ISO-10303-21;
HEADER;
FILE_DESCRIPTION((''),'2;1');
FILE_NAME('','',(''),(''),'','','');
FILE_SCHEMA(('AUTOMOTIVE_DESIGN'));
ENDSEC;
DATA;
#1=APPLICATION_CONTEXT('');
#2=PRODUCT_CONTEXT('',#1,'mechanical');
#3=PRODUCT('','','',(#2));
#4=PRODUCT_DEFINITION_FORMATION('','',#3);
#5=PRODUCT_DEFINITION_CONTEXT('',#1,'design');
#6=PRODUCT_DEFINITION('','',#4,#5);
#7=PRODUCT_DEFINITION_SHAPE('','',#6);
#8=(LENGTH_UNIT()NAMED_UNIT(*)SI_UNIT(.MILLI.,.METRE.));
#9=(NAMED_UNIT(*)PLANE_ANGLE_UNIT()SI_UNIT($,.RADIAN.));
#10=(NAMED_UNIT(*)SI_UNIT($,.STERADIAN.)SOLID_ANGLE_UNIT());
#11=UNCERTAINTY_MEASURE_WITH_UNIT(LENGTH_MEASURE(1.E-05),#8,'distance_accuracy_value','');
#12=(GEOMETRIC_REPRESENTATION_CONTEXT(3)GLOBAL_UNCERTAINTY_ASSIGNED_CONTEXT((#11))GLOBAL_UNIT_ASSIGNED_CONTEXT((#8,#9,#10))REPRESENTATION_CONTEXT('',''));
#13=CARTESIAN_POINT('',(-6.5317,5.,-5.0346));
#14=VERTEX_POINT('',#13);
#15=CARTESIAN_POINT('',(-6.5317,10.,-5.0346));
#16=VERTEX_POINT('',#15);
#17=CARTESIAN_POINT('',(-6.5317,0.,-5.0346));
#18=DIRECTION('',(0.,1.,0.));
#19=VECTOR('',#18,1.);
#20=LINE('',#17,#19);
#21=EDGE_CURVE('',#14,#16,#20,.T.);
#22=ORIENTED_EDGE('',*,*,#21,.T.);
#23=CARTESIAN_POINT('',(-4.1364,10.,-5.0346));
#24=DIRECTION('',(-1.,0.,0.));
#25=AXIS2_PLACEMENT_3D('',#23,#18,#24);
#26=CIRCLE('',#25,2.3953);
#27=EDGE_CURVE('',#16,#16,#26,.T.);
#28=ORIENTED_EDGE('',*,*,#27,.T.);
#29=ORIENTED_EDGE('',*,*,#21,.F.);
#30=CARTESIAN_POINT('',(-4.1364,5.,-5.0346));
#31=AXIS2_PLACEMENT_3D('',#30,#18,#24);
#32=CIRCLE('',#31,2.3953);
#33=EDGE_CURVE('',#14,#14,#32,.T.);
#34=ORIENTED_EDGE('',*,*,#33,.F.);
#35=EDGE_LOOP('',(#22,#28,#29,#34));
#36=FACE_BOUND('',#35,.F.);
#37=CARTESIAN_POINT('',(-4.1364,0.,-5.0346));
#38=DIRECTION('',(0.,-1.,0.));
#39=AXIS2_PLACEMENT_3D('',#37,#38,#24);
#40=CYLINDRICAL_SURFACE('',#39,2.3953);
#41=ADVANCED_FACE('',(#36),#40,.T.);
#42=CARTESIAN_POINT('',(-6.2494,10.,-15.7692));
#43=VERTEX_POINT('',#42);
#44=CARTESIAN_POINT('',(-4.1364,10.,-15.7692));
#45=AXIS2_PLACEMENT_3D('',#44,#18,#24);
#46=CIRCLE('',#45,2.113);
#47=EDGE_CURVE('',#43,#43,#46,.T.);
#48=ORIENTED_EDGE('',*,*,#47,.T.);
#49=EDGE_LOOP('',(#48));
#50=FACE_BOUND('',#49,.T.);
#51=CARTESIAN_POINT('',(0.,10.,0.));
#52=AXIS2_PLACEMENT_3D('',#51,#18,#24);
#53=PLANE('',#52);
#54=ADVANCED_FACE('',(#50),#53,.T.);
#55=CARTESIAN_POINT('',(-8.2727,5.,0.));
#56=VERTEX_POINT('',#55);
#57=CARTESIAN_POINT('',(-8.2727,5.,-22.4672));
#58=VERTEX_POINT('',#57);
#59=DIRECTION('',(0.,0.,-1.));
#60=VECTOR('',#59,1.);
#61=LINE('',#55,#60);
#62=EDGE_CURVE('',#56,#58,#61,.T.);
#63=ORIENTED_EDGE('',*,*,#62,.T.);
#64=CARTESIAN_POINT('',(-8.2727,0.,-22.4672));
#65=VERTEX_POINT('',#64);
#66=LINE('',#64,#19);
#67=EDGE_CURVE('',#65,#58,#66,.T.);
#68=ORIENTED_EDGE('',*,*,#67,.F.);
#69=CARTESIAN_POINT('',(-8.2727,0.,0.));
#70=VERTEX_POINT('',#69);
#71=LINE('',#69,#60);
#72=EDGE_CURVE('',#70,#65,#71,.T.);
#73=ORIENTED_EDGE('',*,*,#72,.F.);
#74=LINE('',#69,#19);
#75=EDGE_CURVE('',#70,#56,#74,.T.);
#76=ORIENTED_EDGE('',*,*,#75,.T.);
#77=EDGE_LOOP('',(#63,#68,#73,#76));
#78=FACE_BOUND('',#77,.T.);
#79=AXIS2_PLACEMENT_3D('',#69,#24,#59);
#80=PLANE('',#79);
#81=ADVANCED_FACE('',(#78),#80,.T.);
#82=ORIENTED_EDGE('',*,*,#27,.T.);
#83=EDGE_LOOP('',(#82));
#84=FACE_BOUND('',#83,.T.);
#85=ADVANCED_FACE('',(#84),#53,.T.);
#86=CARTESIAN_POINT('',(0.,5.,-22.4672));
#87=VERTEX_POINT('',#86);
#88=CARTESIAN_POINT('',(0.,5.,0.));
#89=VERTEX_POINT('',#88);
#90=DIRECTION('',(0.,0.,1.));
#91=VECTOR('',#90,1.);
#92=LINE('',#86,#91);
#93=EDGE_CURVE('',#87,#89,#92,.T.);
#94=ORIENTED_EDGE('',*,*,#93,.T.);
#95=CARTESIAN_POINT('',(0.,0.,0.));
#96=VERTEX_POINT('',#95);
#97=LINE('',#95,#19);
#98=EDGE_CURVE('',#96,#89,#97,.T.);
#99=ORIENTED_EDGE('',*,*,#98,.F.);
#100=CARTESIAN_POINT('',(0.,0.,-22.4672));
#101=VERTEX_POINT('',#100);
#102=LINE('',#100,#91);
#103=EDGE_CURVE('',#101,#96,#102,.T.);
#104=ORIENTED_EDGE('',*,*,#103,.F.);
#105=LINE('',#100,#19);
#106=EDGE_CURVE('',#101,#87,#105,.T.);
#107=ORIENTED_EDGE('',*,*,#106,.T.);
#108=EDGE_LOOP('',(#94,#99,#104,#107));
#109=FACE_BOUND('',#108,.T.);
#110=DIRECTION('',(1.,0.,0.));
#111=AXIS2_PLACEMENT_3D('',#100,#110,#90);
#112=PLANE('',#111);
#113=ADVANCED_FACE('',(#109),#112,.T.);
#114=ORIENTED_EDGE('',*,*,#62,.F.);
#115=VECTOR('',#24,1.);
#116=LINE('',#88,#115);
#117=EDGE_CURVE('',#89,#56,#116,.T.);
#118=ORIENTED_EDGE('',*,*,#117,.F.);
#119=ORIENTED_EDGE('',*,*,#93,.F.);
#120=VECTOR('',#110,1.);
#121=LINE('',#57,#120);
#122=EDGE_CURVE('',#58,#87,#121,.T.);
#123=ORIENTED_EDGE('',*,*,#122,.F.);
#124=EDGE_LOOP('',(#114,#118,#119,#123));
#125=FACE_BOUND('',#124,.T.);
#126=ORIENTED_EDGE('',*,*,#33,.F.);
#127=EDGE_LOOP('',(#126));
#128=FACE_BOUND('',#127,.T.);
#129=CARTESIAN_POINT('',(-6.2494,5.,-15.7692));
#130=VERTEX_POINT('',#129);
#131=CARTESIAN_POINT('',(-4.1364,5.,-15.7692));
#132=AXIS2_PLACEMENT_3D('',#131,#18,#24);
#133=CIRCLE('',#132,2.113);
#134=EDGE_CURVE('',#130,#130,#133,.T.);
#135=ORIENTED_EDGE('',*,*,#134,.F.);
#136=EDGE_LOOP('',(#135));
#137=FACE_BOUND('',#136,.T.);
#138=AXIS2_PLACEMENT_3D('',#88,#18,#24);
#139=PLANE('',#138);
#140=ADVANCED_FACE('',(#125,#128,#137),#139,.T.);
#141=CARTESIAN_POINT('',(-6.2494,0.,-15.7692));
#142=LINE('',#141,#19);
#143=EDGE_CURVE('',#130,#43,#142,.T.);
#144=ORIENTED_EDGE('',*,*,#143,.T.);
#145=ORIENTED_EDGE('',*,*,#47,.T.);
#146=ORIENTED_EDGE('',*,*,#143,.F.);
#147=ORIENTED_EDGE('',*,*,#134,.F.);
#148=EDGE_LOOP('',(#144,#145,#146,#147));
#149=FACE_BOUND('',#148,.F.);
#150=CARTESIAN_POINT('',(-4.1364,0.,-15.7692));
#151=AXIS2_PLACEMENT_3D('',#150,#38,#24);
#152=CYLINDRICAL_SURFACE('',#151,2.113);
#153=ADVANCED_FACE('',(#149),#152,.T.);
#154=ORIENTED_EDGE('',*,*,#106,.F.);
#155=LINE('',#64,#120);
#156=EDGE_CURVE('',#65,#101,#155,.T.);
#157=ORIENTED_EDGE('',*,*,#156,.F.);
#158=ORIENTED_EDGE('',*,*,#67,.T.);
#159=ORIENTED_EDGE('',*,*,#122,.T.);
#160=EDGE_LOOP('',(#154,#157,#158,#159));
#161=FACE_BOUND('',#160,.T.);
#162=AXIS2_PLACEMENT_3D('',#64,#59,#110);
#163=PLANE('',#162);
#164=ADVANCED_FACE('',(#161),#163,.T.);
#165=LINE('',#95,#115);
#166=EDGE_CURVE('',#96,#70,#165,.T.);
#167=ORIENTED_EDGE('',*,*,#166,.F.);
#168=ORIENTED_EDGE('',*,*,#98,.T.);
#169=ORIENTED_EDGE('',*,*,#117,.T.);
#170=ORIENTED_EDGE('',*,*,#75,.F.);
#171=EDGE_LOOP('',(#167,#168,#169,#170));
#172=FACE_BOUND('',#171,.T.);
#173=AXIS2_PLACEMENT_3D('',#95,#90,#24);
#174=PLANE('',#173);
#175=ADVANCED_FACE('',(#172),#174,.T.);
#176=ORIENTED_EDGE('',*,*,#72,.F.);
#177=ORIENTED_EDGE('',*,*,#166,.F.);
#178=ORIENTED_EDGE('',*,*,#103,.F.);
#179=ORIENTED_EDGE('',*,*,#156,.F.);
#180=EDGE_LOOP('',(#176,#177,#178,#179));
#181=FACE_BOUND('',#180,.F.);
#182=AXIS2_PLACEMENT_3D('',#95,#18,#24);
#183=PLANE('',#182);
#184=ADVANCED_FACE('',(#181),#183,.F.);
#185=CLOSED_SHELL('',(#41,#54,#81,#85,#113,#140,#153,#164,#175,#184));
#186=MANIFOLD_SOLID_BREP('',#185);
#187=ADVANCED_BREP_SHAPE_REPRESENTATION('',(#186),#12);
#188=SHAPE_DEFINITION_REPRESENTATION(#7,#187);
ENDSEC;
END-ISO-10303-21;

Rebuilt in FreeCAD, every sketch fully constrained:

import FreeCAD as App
import Part
import Sketcher
from FreeCAD import Vector

doc = App.newDocument("Part")
body = doc.addObject("PartDesign::Body", "Body")

sketch1 = doc.addObject("Sketcher::SketchObject", "Sketch")
body.addObject(sketch1)
sketch1.AttachmentSupport = (doc.XZ_Plane, [""])
sketch1.MapMode = "FlatFace"
sketch1.addGeometry([
    Part.LineSegment(Vector(-8.2727, 0, 0), Vector(0, 0, 0)),
    Part.LineSegment(Vector(0, 0, 0), Vector(0, -22.4672, 0)),
    Part.LineSegment(Vector(0, -22.4672, 0), Vector(-8.2727, -22.4672, 0)),
    Part.LineSegment(Vector(-8.2727, -22.4672, 0), Vector(-8.2727, 0, 0)),
    Part.Circle(Vector(-4.1364, -15.7692, 0), Vector(0, 0, 1), 2.113),
    Part.Circle(Vector(-4.1364, -5.0346, 0), Vector(0, 0, 1), 2.3953),
], False)
sketch1.addConstraint([
    Sketcher.Constraint("Coincident", 0, 2, 1, 1),
    Sketcher.Constraint("Coincident", 1, 2, 2, 1),
    Sketcher.Constraint("Coincident", 2, 2, 3, 1),
    Sketcher.Constraint("Coincident", 3, 2, 0, 1),
    Sketcher.Constraint("Horizontal", 0),
    Sketcher.Constraint("Vertical", 1),
    Sketcher.Constraint("Horizontal", 2),
    Sketcher.Constraint("Vertical", 3),
    Sketcher.Constraint("Coincident", 0, 2, -1, 1),
    Sketcher.Constraint("Vertical", 4, 3, 5, 3),
    Sketcher.Constraint("Diameter", 4, 4.226),
    Sketcher.Constraint("Diameter", 5, 4.7906),
    Sketcher.Constraint("DistanceX", 0, 1, 0, 2, 8.2727),
    Sketcher.Constraint("DistanceY", 1, 2, 1, 1, 22.4672),
    Sketcher.Constraint("DistanceY", 1, 2, 4, 3, 6.698),
    Sketcher.Constraint("DistanceX", 4, 3, -1, 1, 4.1364),
    Sketcher.Constraint("DistanceY", 5, 3, -1, 1, 5.0346),
])
pad1 = doc.addObject("PartDesign::Pad", "Pad")
body.addObject(pad1)
pad1.Profile = sketch1
pad1.Length = 5
pad1.Reversed = True

sketch2 = doc.addObject("Sketcher::SketchObject", "Sketch001")
body.addObject(sketch2)
sketch2.AttachmentSupport = (doc.XZ_Plane, [""])
sketch2.MapMode = "FlatFace"
sketch2.addGeometry([
    Part.Circle(Vector(-4.1364, -5.0346, 0), Vector(0, 0, 1), 2.3953),
    Part.Circle(Vector(-4.1364, -15.7692, 0), Vector(0, 0, 1), 2.113),
], False)
sketch2.addConstraint([
    Sketcher.Constraint("Vertical", 0, 3, 1, 3),
    Sketcher.Constraint("Diameter", 1, 4.226),
    Sketcher.Constraint("Diameter", 0, 4.7906),
    Sketcher.Constraint("DistanceX", 0, 3, -1, 1, 4.1364),
    Sketcher.Constraint("DistanceY", 0, 3, -1, 1, 5.0346),
    Sketcher.Constraint("DistanceY", 1, 3, -1, 1, 15.7692),
])
pad2 = doc.addObject("PartDesign::Pad", "Pad001")
body.addObject(pad2)
pad2.Profile = sketch2
pad2.Length = 10
pad2.Reversed = True

doc.recompute()
